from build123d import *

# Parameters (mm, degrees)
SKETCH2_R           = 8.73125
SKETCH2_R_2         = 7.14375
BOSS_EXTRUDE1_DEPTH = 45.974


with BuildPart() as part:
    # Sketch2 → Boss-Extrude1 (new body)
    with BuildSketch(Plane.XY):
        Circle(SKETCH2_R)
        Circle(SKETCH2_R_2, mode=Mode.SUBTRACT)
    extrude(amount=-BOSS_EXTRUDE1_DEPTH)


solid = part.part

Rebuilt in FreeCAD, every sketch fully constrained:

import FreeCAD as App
import Part
import Sketcher

V = App.Vector
Q = App.Units.Quantity

doc = App.newDocument("Part")
body = doc.addObject("PartDesign::Body", "Body")

# Sketch on XY plane
sketch1 = body.newObject("Sketcher::SketchObject", "Sketch")
sketch1.AttachmentSupport = (doc.getObject("XY_Plane"), [""])
sketch1.MapMode = "FlatFace"
sketch1.addGeometry(Part.Circle(V(0, 0, 0), V(0, 0, 1), 8.73125), False)
sketch1.addGeometry(Part.Circle(V(0, 0, 0), V(0, 0, 1), 7.14375), False)
sketch1.addConstraint(Sketcher.Constraint("Coincident", 0, 3, -1, 1))
sketch1.addConstraint(Sketcher.Constraint("Coincident", 1, 3, -1, 1))
sketch1.addConstraint(Sketcher.Constraint("Diameter", 0, Q("0.6875 in")))
sketch1.addConstraint(Sketcher.Constraint("Diameter", 1, Q("0.5625 in")))
pad1 = body.newObject("PartDesign::Pad", "Pad")
pad1.Profile = sketch1
pad1.Length = Q("1.81 in")
pad1.Reversed = True

doc.recompute()
